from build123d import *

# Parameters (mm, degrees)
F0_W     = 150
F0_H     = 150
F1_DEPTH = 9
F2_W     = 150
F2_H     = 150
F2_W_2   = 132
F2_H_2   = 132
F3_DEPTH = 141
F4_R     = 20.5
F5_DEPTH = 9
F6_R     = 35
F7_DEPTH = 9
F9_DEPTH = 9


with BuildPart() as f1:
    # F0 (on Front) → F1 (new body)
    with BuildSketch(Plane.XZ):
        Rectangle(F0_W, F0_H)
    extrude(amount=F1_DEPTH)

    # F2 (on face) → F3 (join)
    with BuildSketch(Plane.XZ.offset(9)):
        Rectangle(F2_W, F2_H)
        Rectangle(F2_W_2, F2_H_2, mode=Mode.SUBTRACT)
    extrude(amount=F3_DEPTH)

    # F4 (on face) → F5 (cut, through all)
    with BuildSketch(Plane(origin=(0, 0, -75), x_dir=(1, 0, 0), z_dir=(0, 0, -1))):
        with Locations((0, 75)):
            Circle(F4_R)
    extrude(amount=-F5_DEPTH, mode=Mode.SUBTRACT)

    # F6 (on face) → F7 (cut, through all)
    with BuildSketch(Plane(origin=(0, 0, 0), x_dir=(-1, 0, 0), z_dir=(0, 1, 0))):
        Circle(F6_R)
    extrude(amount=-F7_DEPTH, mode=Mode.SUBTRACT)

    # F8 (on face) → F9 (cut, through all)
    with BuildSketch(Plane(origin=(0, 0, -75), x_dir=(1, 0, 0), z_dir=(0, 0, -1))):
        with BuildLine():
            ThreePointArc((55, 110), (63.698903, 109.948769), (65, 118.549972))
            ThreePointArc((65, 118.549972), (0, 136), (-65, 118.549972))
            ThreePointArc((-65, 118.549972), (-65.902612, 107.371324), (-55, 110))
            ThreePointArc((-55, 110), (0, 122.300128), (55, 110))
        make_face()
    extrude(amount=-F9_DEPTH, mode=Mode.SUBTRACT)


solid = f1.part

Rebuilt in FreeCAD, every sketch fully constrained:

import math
import FreeCAD as App
import Part
import Sketcher
Q = App.Units.Quantity


def add_polygon(sketch, points):
    """Adds a closed chain of lines whose ends are joined by coincident constraints."""
    first, n = sketch.GeometryCount, len(points)
    for a, b in zip(points, points[1:] + points[:1]):
        sketch.addGeometry(Part.LineSegment(App.Vector(*a, 0), App.Vector(*b, 0)), False)
    for i in range(n):
        sketch.addConstraint(Sketcher.Constraint("Coincident", first + i, 2, first + (i + 1) % n, 1))

doc = App.newDocument("Part")
body = doc.addObject("PartDesign::Body", "Body")

# Sketch on XZ plane
sketch1 = body.newObject("Sketcher::SketchObject", "Sketch")
sketch1.AttachmentSupport = (doc.getObject("XZ_Plane"), [""])
sketch1.MapMode = "FlatFace"
add_polygon(sketch1, [(-75, 75), (-75, -75), (75, -75), (75, 75)])  # lines 0-3
sketch1.addConstraint([
    Sketcher.Constraint("Vertical", 0),
    Sketcher.Constraint("Horizontal", 1),
    Sketcher.Constraint("Vertical", 2),
    Sketcher.Constraint("Horizontal", 3),
    Sketcher.Constraint("Symmetric", 0, 2, 2, 2, -1, 1),
    Sketcher.Constraint("Equal", 3, 0),
    Sketcher.Constraint("DistanceX", 1, 1, 1, 2, Q("150 mm")),
])
pad1 = body.newObject("PartDesign::Pad", "Pad")
pad1.Profile = sketch1
pad1.Length = 9

# Sketch on XZ plane
sketch2 = body.newObject("Sketcher::SketchObject", "Sketch001")
sketch2.AttachmentSupport = (doc.getObject("XZ_Plane"), [""])
sketch2.MapMode = "FlatFace"
sketch2.AttachmentOffset = App.Placement(App.Vector(0, 0, 9), App.Rotation())
add_polygon(sketch2, [(-75, 75), (-75, -75), (75, -75), (75, 75)])  # lines 0-3
add_polygon(sketch2, [(66, -66), (-66, -66), (-66, 66), (66, 66)])  # lines 4-7
sketch2.addConstraint([
    Sketcher.Constraint("Vertical", 0),
    Sketcher.Constraint("Horizontal", 1),
    Sketcher.Constraint("Vertical", 2),
    Sketcher.Constraint("Horizontal", 3),
    Sketcher.Constraint("Horizontal", 4),
    Sketcher.Constraint("Vertical", 5),
    Sketcher.Constraint("Horizontal", 6),
    Sketcher.Constraint("Vertical", 7),
    Sketcher.Constraint("Symmetric", 0, 2, 2, 2, -1, 1),
    Sketcher.Constraint("Symmetric", 4, 2, 6, 2, -1, 1),
    Sketcher.Constraint("Equal", 3, 0),
    Sketcher.Constraint("Equal", 6, 5),
    Sketcher.Constraint("DistanceX", 1, 1, 1, 2, Q("150 mm")),
    Sketcher.Constraint("DistanceX", 4, 2, 4, 1, Q("132 mm")),
])
pad2 = body.newObject("PartDesign::Pad", "Pad001")
pad2.Profile = sketch2
pad2.Length = 141

# Sketch on XY plane
sketch3 = body.newObject("Sketcher::SketchObject", "Sketch002")
sketch3.AttachmentSupport = (doc.getObject("XY_Plane"), [""])
sketch3.MapMode = "FlatFace"
sketch3.AttachmentOffset = App.Placement(App.Vector(0, 0, -75), App.Rotation())
sketch3.addGeometry(Part.Circle(App.Vector(0, -75, 0), App.Vector(0, 0, 1), 20), False)
sketch3.addConstraint([
    Sketcher.Constraint("PointOnObject", 0, 3, -2),
    Sketcher.Constraint("Diameter", 0, Q("41 mm")),
    Sketcher.Constraint("DistanceY", 0, 3, -1, 1, Q("75 mm")),
])
pocket1 = body.newObject("PartDesign::Pocket", "Pocket")
pocket1.Profile = sketch3
pocket1.Length = 9
pocket1.Reversed = True

# Sketch on XZ plane
sketch4 = body.newObject("Sketcher::SketchObject", "Sketch003")
sketch4.AttachmentSupport = (doc.getObject("XZ_Plane"), [""])
sketch4.MapMode = "FlatFace"
sketch4.addGeometry(Part.Circle(App.Vector(0, 0, 0), App.Vector(0, 0, 1), 35), False)
sketch4.addConstraint([
    Sketcher.Constraint("Coincident", 0, 3, -1, 1),
    Sketcher.Constraint("Diameter", 0, Q("70 mm")),
])
pocket2 = body.newObject("PartDesign::Pocket", "Pocket001")
pocket2.Profile = sketch4
pocket2.Type = "ThroughAll"
pocket2.Reversed = True

# Sketch on XY plane
sketch5 = body.newObject("Sketcher::SketchObject", "Sketch004")
sketch5.AttachmentSupport = (doc.getObject("XY_Plane"), [""])
sketch5.MapMode = "FlatFace"
sketch5.AttachmentOffset = App.Placement(App.Vector(0, 0, -75), App.Rotation())
sketch5.addGeometry([
    Part.ArcOfCircle(Part.Circle(App.Vector(59, -115, 0), App.Vector(0, 0, 1), 7), math.radians(-32), math.radians(131)),
    Part.ArcOfCircle(Part.Circle(App.Vector(0, -6, 0), App.Vector(0, 0, 1), 130), math.radians(-120), math.radians(-60)),
    Part.ArcOfCircle(Part.Circle(App.Vector(-61, -113, 0), App.Vector(0, 0, 1), 7), math.radians(22), math.radians(239)),
    Part.ArcOfCircle(Part.Circle(App.Vector(0, 7, 0), App.Vector(0, 0, 1), 129), math.radians(-115), math.radians(-65)),
], False)
sketch5.addConstraint([
    Sketcher.Constraint("Coincident", 0, 1, 1, 2),
    Sketcher.Constraint("Coincident", 1, 1, 2, 2),
    Sketcher.Constraint("Coincident", 2, 1, 3, 1),
    Sketcher.Constraint("Coincident", 3, 2, 0, 2),
    Sketcher.Constraint("Symmetric", 0, 1, 1, 1, -2),
    Sketcher.Constraint("Symmetric", 2, 1, 3, 2, -2),
    Sketcher.Constraint("DistanceX", -1, 1, 0, 1, Q("65 mm")),
    Sketcher.Constraint("DistanceX", 2, 1, -1, 1, Q("55 mm")),
    Sketcher.Constraint("DistanceY", 2, 1, -1, 1, Q("110 mm")),
    Sketcher.Constraint("Radius", 1, Q("129.784992 mm")),
    Sketcher.Constraint("Radius", 2, Q("6.923732 mm")),
    Sketcher.Constraint("Radius", 0, Q("6.647444 mm")),
    Sketcher.Constraint("Radius", 3, Q("129.116264 mm")),
    Sketcher.Constraint("DistanceY", 0, 3, -1, 1, Q("115.001238 mm")),
])
pocket3 = body.newObject("PartDesign::Pocket", "Pocket002")
pocket3.Profile = sketch5
pocket3.Length = 9
pocket3.Reversed = True

doc.recompute()
